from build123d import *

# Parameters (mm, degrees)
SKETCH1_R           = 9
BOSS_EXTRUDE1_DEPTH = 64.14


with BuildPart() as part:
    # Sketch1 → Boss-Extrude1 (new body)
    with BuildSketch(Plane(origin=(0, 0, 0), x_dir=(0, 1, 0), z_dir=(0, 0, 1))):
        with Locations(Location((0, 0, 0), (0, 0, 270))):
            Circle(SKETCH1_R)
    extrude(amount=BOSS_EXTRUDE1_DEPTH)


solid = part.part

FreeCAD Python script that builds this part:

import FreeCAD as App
import Part
import Sketcher

V = App.Vector

doc = App.newDocument("Part")
body = doc.addObject("PartDesign::Body", "Body")

# Sketch on XY plane
sketch1 = doc.addObject("Sketcher::SketchObject", "Sketch")
body.addObject(sketch1)
sketch1.AttachmentSupport = (doc.XY_Plane, [""])
sketch1.MapMode = "FlatFace"
sketch1.addGeometry(Part.Circle(V(0, 0, 0), V(0, 0, 1), 9), False)
sketch1.addConstraint(Sketcher.Constraint("Coincident", 0, 3, -1, 1))
sketch1.addConstraint(Sketcher.Constraint("Diameter", 0, 18.0))
pad1 = doc.addObject("PartDesign::Pad", "Pad")
body.addObject(pad1)
pad1.Profile = sketch1
pad1.Length = 64.14

doc.recompute()
